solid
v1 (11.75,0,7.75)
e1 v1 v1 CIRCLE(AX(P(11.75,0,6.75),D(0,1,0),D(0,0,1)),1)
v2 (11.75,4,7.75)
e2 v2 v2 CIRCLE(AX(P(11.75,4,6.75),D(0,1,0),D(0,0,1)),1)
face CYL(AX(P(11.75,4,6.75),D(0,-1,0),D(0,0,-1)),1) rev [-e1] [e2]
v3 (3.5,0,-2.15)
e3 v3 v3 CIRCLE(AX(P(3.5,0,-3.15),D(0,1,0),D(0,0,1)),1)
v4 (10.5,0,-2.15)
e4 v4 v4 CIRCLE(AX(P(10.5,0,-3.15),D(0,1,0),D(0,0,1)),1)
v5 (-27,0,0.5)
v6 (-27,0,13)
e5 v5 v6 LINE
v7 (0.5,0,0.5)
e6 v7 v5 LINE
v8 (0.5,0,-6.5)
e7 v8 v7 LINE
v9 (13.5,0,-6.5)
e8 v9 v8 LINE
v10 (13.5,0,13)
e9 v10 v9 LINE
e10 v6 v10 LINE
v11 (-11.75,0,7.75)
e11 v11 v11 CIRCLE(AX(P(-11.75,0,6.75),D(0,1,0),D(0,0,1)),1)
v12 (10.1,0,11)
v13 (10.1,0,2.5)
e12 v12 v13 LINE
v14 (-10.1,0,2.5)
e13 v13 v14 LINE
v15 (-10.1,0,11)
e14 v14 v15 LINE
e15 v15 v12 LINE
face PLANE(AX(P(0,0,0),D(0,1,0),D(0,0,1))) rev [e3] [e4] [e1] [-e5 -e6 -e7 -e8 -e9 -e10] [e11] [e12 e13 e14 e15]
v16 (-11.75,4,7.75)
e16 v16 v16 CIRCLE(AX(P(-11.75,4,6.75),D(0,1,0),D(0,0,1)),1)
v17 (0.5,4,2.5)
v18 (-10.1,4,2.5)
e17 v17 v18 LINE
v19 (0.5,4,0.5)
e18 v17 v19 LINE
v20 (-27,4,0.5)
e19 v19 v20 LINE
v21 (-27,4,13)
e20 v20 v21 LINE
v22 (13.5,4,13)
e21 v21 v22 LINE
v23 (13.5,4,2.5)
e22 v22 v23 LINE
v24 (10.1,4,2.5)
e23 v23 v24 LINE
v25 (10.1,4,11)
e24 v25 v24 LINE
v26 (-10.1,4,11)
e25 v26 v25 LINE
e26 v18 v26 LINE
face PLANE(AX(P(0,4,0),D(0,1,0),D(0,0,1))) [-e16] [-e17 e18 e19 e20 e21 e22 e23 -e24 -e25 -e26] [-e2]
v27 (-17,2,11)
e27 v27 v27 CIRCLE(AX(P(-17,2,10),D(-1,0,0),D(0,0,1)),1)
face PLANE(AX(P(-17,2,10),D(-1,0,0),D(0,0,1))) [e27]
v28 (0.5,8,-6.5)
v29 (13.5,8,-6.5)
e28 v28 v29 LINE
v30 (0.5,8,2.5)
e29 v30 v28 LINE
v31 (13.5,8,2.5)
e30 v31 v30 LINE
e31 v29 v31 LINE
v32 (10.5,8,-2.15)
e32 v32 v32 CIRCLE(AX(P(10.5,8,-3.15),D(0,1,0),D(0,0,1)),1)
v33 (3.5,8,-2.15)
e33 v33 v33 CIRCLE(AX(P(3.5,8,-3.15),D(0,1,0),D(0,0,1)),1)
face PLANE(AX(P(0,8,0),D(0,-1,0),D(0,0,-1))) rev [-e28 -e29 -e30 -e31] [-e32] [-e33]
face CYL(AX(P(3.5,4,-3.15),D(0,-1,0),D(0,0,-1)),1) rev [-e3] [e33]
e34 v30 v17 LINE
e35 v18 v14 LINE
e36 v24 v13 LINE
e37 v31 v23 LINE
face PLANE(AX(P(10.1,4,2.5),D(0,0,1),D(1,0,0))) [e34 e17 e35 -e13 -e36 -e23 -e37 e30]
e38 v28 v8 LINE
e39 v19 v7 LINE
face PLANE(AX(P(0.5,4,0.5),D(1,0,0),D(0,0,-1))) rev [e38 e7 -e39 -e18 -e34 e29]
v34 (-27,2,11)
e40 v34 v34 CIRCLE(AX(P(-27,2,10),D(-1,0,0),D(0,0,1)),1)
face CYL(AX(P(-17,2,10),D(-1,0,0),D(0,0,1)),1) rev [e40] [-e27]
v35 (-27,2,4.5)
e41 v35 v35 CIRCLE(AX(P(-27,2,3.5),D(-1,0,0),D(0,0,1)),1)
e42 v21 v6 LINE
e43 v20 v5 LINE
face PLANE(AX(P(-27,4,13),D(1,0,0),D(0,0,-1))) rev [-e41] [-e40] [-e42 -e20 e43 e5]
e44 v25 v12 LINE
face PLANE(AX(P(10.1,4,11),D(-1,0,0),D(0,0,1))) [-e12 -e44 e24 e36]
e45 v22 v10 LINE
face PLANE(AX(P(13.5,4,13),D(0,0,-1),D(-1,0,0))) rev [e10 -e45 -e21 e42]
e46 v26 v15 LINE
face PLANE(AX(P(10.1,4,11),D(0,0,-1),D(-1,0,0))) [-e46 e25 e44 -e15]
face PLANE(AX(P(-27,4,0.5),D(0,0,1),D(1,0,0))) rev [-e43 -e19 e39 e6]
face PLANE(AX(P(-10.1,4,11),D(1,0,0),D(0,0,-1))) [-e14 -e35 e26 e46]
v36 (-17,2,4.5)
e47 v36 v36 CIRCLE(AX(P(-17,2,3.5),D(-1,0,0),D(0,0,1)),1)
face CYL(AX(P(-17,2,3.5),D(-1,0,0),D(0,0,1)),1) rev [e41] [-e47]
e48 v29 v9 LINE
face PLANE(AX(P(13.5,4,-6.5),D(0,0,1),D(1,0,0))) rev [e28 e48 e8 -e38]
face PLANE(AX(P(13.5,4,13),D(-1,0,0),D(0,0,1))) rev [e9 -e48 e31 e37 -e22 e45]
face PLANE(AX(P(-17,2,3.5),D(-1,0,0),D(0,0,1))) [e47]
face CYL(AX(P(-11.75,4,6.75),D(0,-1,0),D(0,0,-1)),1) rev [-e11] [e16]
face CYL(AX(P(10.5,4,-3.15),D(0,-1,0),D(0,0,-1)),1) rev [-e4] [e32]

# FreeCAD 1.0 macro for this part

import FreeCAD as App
import Part
import Sketcher
from FreeCAD import Vector
Q = App.Units.Quantity

doc = App.newDocument("Part")
body = doc.addObject("PartDesign::Body", "Body")

# Sketch on XZ plane
sketch1 = doc.addObject("Sketcher::SketchObject", "Sketch")
body.addObject(sketch1)
sketch1.AttachmentSupport = (doc.XZ_Plane, [""])
sketch1.MapMode = "FlatFace"
sketch1.addGeometry([
    Part.LineSegment(Vector(0.5, 0.5, 0), Vector(-27, 0.5, 0)),  # 0
    Part.LineSegment(Vector(-27, 0.5, 0), Vector(-27, 13, 0)),  # 1
    Part.LineSegment(Vector(-27, 13, 0), Vector(13.5, 13, 0)),  # 2
    Part.LineSegment(Vector(13.5, 13, 0), Vector(13.5, -6.5, 0)),  # 3
    Part.LineSegment(Vector(13.5, -6.5, 0), Vector(0.5, -6.5, 0)),  # 4
    Part.LineSegment(Vector(0.5, -6.5, 0), Vector(0.5, 0.5, 0)),  # 5
    Part.Circle(Vector(11.8, 6.8, 0), Vector(0, 0, 1), 1),  # 6
    Part.LineSegment(Vector(-10.1, 11, 0), Vector(-10.1, 2.5, 0)),  # 7
    Part.LineSegment(Vector(-10.1, 2.5, 0), Vector(10.1, 2.5, 0)),  # 8
    Part.LineSegment(Vector(10.1, 2.5, 0), Vector(10.1, 11, 0)),  # 9
    Part.LineSegment(Vector(10.1, 11, 0), Vector(-10.1, 11, 0)),  # 10
    Part.Circle(Vector(-11.8, 6.8, 0), Vector(0, 0, 1), 1),  # 11
    Part.Circle(Vector(10.5, -3.1, 0), Vector(0, 0, 1), 1),  # 12
    Part.Circle(Vector(3.5, -3.1, 0), Vector(0, 0, 1), 1),  # 13
], False)
sketch1.addConstraint([
    Sketcher.Constraint("Coincident", 0, 2, 1, 1),
    Sketcher.Constraint("Coincident", 1, 2, 2, 1),
    Sketcher.Constraint("Coincident", 2, 2, 3, 1),
    Sketcher.Constraint("Coincident", 3, 2, 4, 1),
    Sketcher.Constraint("Coincident", 4, 2, 5, 1),
    Sketcher.Constraint("Coincident", 5, 2, 0, 1),
    Sketcher.Constraint("Coincident", 7, 2, 8, 1),
    Sketcher.Constraint("Coincident", 8, 2, 9, 1),
    Sketcher.Constraint("Coincident", 9, 2, 10, 1),
    Sketcher.Constraint("Coincident", 10, 2, 7, 1),
    Sketcher.Constraint("Horizontal", 0),
    Sketcher.Constraint("Vertical", 1),
    Sketcher.Constraint("Horizontal", 2),
    Sketcher.Constraint("Vertical", 3),
    Sketcher.Constraint("Horizontal", 4),
    Sketcher.Constraint("Vertical", 5),
    Sketcher.Constraint("Vertical", 7),
    Sketcher.Constraint("Horizontal", 8),
    Sketcher.Constraint("Vertical", 9),
    Sketcher.Constraint("Horizontal", 10),
    Sketcher.Constraint("Equal", 6, 11),
    Sketcher.Constraint("Equal", 11, 12),
    Sketcher.Constraint("Equal", 12, 13),
    Sketcher.Constraint("Symmetric", 6, 3, 11, 3, -2),
    Sketcher.Constraint("Horizontal", 12, 3, 13, 3),
    Sketcher.Constraint("Diameter", 6, Q("2 mm")),
    Sketcher.Constraint("DistanceX", 4, 2, 4, 1, Q("13 mm")),
    Sketcher.Constraint("DistanceY", 5, 1, 5, 2, Q("7 mm")),
    Sketcher.Constraint("DistanceX", 0, 2, 0, 1, Q("27.5 mm")),
    Sketcher.Constraint("DistanceX", 8, 1, 8, 2, Q("20.2 mm")),
    Sketcher.Constraint("DistanceY", 1, 1, 1, 2, Q("12.5 mm")),
    Sketcher.Constraint("DistanceY", 7, 2, 7, 1, Q("8.5 mm")),
    Sketcher.Constraint("DistanceX", 0, 2, -1, 1, Q("27 mm")),
    Sketcher.Constraint("DistanceY", -1, 1, 1, 2, Q("13 mm")),
    Sketcher.Constraint("DistanceY", -1, 1, 9, 2, Q("11 mm")),
    Sketcher.Constraint("DistanceX", 13, 3, 12, 3, Q("7 mm")),
    Sketcher.Constraint("DistanceX", 12, 3, 2, 2, Q("3 mm")),
    Sketcher.Constraint("DistanceX", 7, 2, -1, 1, Q("10.1 mm")),
    Sketcher.Constraint("DistanceX", 11, 3, 6, 3, Q("23.5 mm")),
    Sketcher.Constraint("DistanceY", 12, 3, 6, 3, Q("9.9 mm")),
    Sketcher.Constraint("DistanceY", -1, 1, 6, 3, Q("6.75 mm")),
])
pad1 = doc.addObject("PartDesign::Pad", "Pad")
body.addObject(pad1)
pad1.Profile = sketch1
pad1.Length = 4
pad1.Reversed = True

# Sketch on XZ plane
sketch2 = doc.addObject("Sketcher::SketchObject", "Sketch001")
body.addObject(sketch2)
sketch2.AttachmentSupport = (doc.XZ_Plane, [""])
sketch2.MapMode = "FlatFace"
sketch2.AttachmentOffset = App.Placement(Vector(0, 0, -4), App.Rotation())
sketch2.addGeometry([
    Part.LineSegment(Vector(0, 2, 0), Vector(0, -6, 0)),
    Part.LineSegment(Vector(0, -6, 0), Vector(14, -6, 0)),
    Part.LineSegment(Vector(14, -6, 0), Vector(14, 2, 0)),
    Part.LineSegment(Vector(14, 2, 0), Vector(0, 2, 0)),
], False)
sketch2.addConstraint([
    Sketcher.Constraint("Coincident", 0, 2, 1, 1),
    Sketcher.Constraint("Coincident", 1, 2, 2, 1),
    Sketcher.Constraint("Coincident", 2, 2, 3, 1),
    Sketcher.Constraint("Coincident", 3, 2, 0, 1),
    Sketcher.Constraint("Vertical", 0),
    Sketcher.Constraint("Horizontal", 1),
    Sketcher.Constraint("Vertical", 2),
    Sketcher.Constraint("Horizontal", 3),
    Sketcher.Constraint("DistanceX", 1, 1, 1, 2, Q("13 mm")),
    Sketcher.Constraint("DistanceY", 0, 2, 0, 1, Q("9 mm")),
    Sketcher.Constraint("DistanceX", -1, 1, 0, 2, Q("0.5 mm")),
    Sketcher.Constraint("DistanceY", 0, 2, -1, 1, Q("6.5 mm")),
])
pad2 = doc.addObject("PartDesign::Pad", "Pad001")
body.addObject(pad2)
pad2.Profile = sketch2
pad2.Length = 4
pad2.Reversed = True

# Sketch on XZ plane
sketch3 = doc.addObject("Sketcher::SketchObject", "Sketch002")
body.addObject(sketch3)
sketch3.AttachmentSupport = (doc.XZ_Plane, [""])
sketch3.MapMode = "FlatFace"
sketch3.addGeometry([
    Part.Circle(Vector(10.5, -3.1, 0), Vector(0, 0, 1), 1),
    Part.Circle(Vector(3.5, -3.1, 0), Vector(0, 0, 1), 1),
], False)
sketch3.addConstraint([
    Sketcher.Constraint("Equal", 0, 1),
    Sketcher.Constraint("Horizontal", 0, 3, 1, 3),
    Sketcher.Constraint("Diameter", 0, Q("2 mm")),
    Sketcher.Constraint("DistanceX", 1, 3, 0, 3, Q("7 mm")),
    Sketcher.Constraint("DistanceX", -1, 1, 0, 3, Q("10.5 mm")),
    Sketcher.Constraint("DistanceY", 0, 3, -1, 1, Q("3.15 mm")),
])
pocket1 = doc.addObject("PartDesign::Pocket", "Pocket")
body.addObject(pocket1)
pocket1.Profile = sketch3
pocket1.Type = "ThroughAll"

# Sketch on YZ plane
sketch4 = doc.addObject("Sketcher::SketchObject", "Sketch003")
body.addObject(sketch4)
sketch4.AttachmentSupport = (doc.YZ_Plane, [""])
sketch4.MapMode = "FlatFace"
sketch4.AttachmentOffset = App.Placement(Vector(0, 0, -27), App.Rotation())
sketch4.addGeometry([
    Part.Circle(Vector(2, 3.5, 0), Vector(0, 0, 1), 1),
    Part.Circle(Vector(2, 10, 0), Vector(0, 0, 1), 1),
], False)
sketch4.addConstraint([
    Sketcher.Constraint("Equal", 0, 1),
    Sketcher.Constraint("Vertical", 0, 3, 1, 3),
    Sketcher.Constraint("Diameter", 0, Q("2 mm")),
    Sketcher.Constraint("DistanceX", -1, 1, 0, 3, Q("2 mm")),
    Sketcher.Constraint("DistanceY", -1, 1, 1, 3, Q("10 mm")),
    Sketcher.Constraint("DistanceY", -1, 1, 0, 3, Q("3.5 mm")),
])
pocket2 = doc.addObject("PartDesign::Pocket", "Pocket001")
body.addObject(pocket2)
pocket2.Profile = sketch4
pocket2.Length = 10
pocket2.Reversed = True

doc.recompute()
